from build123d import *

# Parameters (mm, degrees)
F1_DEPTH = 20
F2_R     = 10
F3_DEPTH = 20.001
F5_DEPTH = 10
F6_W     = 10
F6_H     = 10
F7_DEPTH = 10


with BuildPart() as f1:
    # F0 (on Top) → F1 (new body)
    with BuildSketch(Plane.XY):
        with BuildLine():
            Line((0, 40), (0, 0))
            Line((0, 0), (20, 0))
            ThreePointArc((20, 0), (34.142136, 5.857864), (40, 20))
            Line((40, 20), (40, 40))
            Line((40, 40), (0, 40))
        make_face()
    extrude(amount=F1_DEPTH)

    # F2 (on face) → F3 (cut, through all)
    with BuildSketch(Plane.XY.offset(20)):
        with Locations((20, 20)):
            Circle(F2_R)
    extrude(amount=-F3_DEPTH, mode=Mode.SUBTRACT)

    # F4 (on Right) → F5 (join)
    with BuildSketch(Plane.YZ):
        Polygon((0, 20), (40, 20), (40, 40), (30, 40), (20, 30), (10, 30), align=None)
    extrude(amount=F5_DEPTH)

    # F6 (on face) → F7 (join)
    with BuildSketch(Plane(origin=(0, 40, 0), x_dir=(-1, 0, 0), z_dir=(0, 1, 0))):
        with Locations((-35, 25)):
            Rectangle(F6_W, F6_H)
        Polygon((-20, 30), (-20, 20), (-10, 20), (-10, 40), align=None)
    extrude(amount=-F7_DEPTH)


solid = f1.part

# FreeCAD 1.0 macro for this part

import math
import FreeCAD as App
import Part
import Sketcher
from FreeCAD import Vector

doc = App.newDocument("Part")
params = doc.addObject("Spreadsheet::Sheet", "Params")
for row, (alias, value) in enumerate([
    ("sketch1_radius", "19.999999 mm"),
    ("sketch1_width", "20 mm"),
    ("pad1_length", "20 mm"),
    ("sketch2_diameter", "20 mm"),
    ("sketch3_width", "40 mm"),
    ("sketch3_width2", "10 mm"),
    ("sketch3_height", "20 mm"),
    ("pad2_length", "10 mm"),
    ("sketch4_width", "10 mm"),
    ("sketch4_height", "20 mm"),
    ("pad3_length", "10 mm"),
], start=1):
    params.set(f"A{row}", alias)
    params.set(f"B{row}", "=" + value)
    params.setAlias(f"B{row}", alias)

body = doc.addObject("PartDesign::Body", "Body")

# Sketch on XY plane
sketch1 = body.newObject("Sketcher::SketchObject", "Sketch")
sketch1.AttachmentSupport = (doc.getObject("XY_Plane"), [""])
sketch1.MapMode = "FlatFace"
sketch1.addGeometry([
    Part.LineSegment(Vector(0, 40, 0), Vector(0, 0, 0)),  # 0
    Part.LineSegment(Vector(0, 0, 0), Vector(20, 0, 0)),  # 1
    Part.ArcOfCircle(Part.Circle(Vector(20, 20, 0), Vector(0, 0, 1), 20), math.radians(-90), math.radians(0)),  # 2
    Part.LineSegment(Vector(40, 20, 0), Vector(40, 40, 0)),  # 3
    Part.LineSegment(Vector(40, 40, 0), Vector(0, 40, 0)),  # 4
], False)
sketch1.addConstraint([
    Sketcher.Constraint("Coincident", 0, 2, 1, 1),
    Sketcher.Constraint("Tangent", 1, 2, 2, 1),
    Sketcher.Constraint("Tangent", 2, 2, 3, 1),
    Sketcher.Constraint("Coincident", 3, 2, 4, 1),
    Sketcher.Constraint("Coincident", 4, 2, 0, 1),
    Sketcher.Constraint("Vertical", 0),
    Sketcher.Constraint("Horizontal", 1),
    Sketcher.Constraint("Vertical", 3),
    Sketcher.Constraint("Horizontal", 4),
    Sketcher.Constraint("Coincident", 0, 2, -1, 1),
    Sketcher.Constraint("Equal", 4, 0),
    Sketcher.Constraint("Radius", 2, 19.999999),
    Sketcher.Constraint("DistanceX", 1, 1, 1, 2, 20.0),
])
sketch1.setExpression("Constraints[11]", "Params.sketch1_radius")
sketch1.setExpression("Constraints[12]", "Params.sketch1_width")
pad1 = body.newObject("PartDesign::Pad", "Pad")
pad1.Profile = sketch1
pad1.setExpression("Length", "Params.pad1_length")

# Sketch on XY plane
sketch2 = body.newObject("Sketcher::SketchObject", "Sketch001")
sketch2.AttachmentSupport = (doc.getObject("XY_Plane"), [""])
sketch2.MapMode = "FlatFace"
sketch2.AttachmentOffset = App.Placement(Vector(0, 0, 20), App.Rotation())
sketch2.addGeometry(Part.Circle(Vector(20, 20, 0), Vector(0, 0, 1), 10), False)
sketch2.addConstraint([
    Sketcher.Constraint("Diameter", 0, 20.0),
    Sketcher.Constraint("DistanceX", -1, 1, 0, 3, 20.0),
    Sketcher.Constraint("DistanceY", -1, 1, 0, 3, 20.0),
])
sketch2.setExpression("Constraints[0]", "Params.sketch2_diameter")
pocket1 = body.newObject("PartDesign::Pocket", "Pocket")
pocket1.Profile = sketch2
pocket1.Type = "ThroughAll"

# Sketch on YZ plane
sketch3 = body.newObject("Sketcher::SketchObject", "Sketch002")
sketch3.AttachmentSupport = (doc.getObject("YZ_Plane"), [""])
sketch3.MapMode = "FlatFace"
sketch3.addGeometry([
    Part.LineSegment(Vector(0, 20, 0), Vector(40, 20, 0)),  # 0
    Part.LineSegment(Vector(40, 20, 0), Vector(40, 40, 0)),  # 1
    Part.LineSegment(Vector(40, 40, 0), Vector(30, 40, 0)),  # 2
    Part.LineSegment(Vector(30, 40, 0), Vector(20, 30, 0)),  # 3
    Part.LineSegment(Vector(20, 30, 0), Vector(10, 30, 0)),  # 4
    Part.LineSegment(Vector(10, 30, 0), Vector(0, 20, 0)),  # 5
], False)
sketch3.addConstraint([
    Sketcher.Constraint("Coincident", 0, 2, 1, 1),
    Sketcher.Constraint("Coincident", 1, 2, 2, 1),
    Sketcher.Constraint("Coincident", 2, 2, 3, 1),
    Sketcher.Constraint("Coincident", 3, 2, 4, 1),
    Sketcher.Constraint("Coincident", 4, 2, 5, 1),
    Sketcher.Constraint("Coincident", 5, 2, 0, 1),
    Sketcher.Constraint("Horizontal", 0),
    Sketcher.Constraint("Vertical", 1),
    Sketcher.Constraint("Horizontal", 2),
    Sketcher.Constraint("Horizontal", 4),
    Sketcher.Constraint("PointOnObject", 5, 2, -2),
    Sketcher.Constraint("Parallel", 3, 5),
    Sketcher.Constraint("Equal", 2, 4),
    Sketcher.Constraint("Equal", 3, 5),
    Sketcher.Constraint("DistanceX", 0, 1, 0, 2, 40.0),
    Sketcher.Constraint("DistanceX", 2, 2, 2, 1, 10.0),
    Sketcher.Constraint("DistanceY", 1, 1, 1, 2, 20.0),
    Sketcher.Constraint("DistanceY", -1, 1, 0, 2, 20.0),
])
sketch3.setExpression("Constraints[14]", "Params.sketch3_width")
sketch3.setExpression("Constraints[15]", "Params.sketch3_width2")
sketch3.setExpression("Constraints[16]", "Params.sketch3_height")
pad2 = body.newObject("PartDesign::Pad", "Pad001")
pad2.Profile = sketch3
pad2.setExpression("Length", "Params.pad2_length")

# Sketch on XZ plane
sketch4 = body.newObject("Sketcher::SketchObject", "Sketch003")
sketch4.AttachmentSupport = (doc.getObject("XZ_Plane"), [""])
sketch4.MapMode = "FlatFace"
sketch4.AttachmentOffset = App.Placement(Vector(0, 0, -40), App.Rotation())
sketch4.addGeometry([
    Part.LineSegment(Vector(40, 30, 0), Vector(40, 20, 0)),  # 0
    Part.LineSegment(Vector(40, 20, 0), Vector(30, 20, 0)),  # 1
    Part.LineSegment(Vector(30, 20, 0), Vector(30, 30, 0)),  # 2
    Part.LineSegment(Vector(30, 30, 0), Vector(40, 30, 0)),  # 3
    Part.LineSegment(Vector(20, 30, 0), Vector(20, 20, 0)),  # 4
    Part.LineSegment(Vector(20, 20, 0), Vector(10, 20, 0)),  # 5
    Part.LineSegment(Vector(10, 20, 0), Vector(10, 40, 0)),  # 6
    Part.LineSegment(Vector(10, 40, 0), Vector(20, 30, 0)),  # 7
], False)
sketch4.addConstraint([
    Sketcher.Constraint("Coincident", 0, 2, 1, 1),
    Sketcher.Constraint("Coincident", 1, 2, 2, 1),
    Sketcher.Constraint("Coincident", 2, 2, 3, 1),
    Sketcher.Constraint("Coincident", 3, 2, 0, 1),
    Sketcher.Constraint("Coincident", 4, 2, 5, 1),
    Sketcher.Constraint("Coincident", 5, 2, 6, 1),
    Sketcher.Constraint("Coincident", 6, 2, 7, 1),
    Sketcher.Constraint("Coincident", 7, 2, 4, 1),
    Sketcher.Constraint("Vertical", 0),
    Sketcher.Constraint("Horizontal", 1),
    Sketcher.Constraint("Vertical", 2),
    Sketcher.Constraint("Horizontal", 3),
    Sketcher.Constraint("Vertical", 4),
    Sketcher.Constraint("Horizontal", 5),
    Sketcher.Constraint("Vertical", 6),
    Sketcher.Constraint("Horizontal", 1, 2, 4, 2),
    Sketcher.Constraint("Horizontal", 3, 2, 7, 2),
    Sketcher.Constraint("Equal", 3, 5),
    Sketcher.Constraint("Equal", 5, 0),
    Sketcher.Constraint("DistanceX", 1, 2, 1, 1, 10.0),
    Sketcher.Constraint("DistanceY", 6, 1, 6, 2, 20.0),
    Sketcher.Constraint("DistanceX", -1, 1, 0, 2, 40.0),
    Sketcher.Constraint("DistanceY", -1, 1, 0, 2, 20.0),
    Sketcher.Constraint("DistanceX", -1, 1, 4, 2, 20.0),
])
sketch4.setExpression("Constraints[19]", "Params.sketch4_width")
sketch4.setExpression("Constraints[20]", "Params.sketch4_height")
pad3 = body.newObject("PartDesign::Pad", "Pad002")
pad3.Profile = sketch4
pad3.setExpression("Length", "Params.pad3_length")

doc.recompute()
